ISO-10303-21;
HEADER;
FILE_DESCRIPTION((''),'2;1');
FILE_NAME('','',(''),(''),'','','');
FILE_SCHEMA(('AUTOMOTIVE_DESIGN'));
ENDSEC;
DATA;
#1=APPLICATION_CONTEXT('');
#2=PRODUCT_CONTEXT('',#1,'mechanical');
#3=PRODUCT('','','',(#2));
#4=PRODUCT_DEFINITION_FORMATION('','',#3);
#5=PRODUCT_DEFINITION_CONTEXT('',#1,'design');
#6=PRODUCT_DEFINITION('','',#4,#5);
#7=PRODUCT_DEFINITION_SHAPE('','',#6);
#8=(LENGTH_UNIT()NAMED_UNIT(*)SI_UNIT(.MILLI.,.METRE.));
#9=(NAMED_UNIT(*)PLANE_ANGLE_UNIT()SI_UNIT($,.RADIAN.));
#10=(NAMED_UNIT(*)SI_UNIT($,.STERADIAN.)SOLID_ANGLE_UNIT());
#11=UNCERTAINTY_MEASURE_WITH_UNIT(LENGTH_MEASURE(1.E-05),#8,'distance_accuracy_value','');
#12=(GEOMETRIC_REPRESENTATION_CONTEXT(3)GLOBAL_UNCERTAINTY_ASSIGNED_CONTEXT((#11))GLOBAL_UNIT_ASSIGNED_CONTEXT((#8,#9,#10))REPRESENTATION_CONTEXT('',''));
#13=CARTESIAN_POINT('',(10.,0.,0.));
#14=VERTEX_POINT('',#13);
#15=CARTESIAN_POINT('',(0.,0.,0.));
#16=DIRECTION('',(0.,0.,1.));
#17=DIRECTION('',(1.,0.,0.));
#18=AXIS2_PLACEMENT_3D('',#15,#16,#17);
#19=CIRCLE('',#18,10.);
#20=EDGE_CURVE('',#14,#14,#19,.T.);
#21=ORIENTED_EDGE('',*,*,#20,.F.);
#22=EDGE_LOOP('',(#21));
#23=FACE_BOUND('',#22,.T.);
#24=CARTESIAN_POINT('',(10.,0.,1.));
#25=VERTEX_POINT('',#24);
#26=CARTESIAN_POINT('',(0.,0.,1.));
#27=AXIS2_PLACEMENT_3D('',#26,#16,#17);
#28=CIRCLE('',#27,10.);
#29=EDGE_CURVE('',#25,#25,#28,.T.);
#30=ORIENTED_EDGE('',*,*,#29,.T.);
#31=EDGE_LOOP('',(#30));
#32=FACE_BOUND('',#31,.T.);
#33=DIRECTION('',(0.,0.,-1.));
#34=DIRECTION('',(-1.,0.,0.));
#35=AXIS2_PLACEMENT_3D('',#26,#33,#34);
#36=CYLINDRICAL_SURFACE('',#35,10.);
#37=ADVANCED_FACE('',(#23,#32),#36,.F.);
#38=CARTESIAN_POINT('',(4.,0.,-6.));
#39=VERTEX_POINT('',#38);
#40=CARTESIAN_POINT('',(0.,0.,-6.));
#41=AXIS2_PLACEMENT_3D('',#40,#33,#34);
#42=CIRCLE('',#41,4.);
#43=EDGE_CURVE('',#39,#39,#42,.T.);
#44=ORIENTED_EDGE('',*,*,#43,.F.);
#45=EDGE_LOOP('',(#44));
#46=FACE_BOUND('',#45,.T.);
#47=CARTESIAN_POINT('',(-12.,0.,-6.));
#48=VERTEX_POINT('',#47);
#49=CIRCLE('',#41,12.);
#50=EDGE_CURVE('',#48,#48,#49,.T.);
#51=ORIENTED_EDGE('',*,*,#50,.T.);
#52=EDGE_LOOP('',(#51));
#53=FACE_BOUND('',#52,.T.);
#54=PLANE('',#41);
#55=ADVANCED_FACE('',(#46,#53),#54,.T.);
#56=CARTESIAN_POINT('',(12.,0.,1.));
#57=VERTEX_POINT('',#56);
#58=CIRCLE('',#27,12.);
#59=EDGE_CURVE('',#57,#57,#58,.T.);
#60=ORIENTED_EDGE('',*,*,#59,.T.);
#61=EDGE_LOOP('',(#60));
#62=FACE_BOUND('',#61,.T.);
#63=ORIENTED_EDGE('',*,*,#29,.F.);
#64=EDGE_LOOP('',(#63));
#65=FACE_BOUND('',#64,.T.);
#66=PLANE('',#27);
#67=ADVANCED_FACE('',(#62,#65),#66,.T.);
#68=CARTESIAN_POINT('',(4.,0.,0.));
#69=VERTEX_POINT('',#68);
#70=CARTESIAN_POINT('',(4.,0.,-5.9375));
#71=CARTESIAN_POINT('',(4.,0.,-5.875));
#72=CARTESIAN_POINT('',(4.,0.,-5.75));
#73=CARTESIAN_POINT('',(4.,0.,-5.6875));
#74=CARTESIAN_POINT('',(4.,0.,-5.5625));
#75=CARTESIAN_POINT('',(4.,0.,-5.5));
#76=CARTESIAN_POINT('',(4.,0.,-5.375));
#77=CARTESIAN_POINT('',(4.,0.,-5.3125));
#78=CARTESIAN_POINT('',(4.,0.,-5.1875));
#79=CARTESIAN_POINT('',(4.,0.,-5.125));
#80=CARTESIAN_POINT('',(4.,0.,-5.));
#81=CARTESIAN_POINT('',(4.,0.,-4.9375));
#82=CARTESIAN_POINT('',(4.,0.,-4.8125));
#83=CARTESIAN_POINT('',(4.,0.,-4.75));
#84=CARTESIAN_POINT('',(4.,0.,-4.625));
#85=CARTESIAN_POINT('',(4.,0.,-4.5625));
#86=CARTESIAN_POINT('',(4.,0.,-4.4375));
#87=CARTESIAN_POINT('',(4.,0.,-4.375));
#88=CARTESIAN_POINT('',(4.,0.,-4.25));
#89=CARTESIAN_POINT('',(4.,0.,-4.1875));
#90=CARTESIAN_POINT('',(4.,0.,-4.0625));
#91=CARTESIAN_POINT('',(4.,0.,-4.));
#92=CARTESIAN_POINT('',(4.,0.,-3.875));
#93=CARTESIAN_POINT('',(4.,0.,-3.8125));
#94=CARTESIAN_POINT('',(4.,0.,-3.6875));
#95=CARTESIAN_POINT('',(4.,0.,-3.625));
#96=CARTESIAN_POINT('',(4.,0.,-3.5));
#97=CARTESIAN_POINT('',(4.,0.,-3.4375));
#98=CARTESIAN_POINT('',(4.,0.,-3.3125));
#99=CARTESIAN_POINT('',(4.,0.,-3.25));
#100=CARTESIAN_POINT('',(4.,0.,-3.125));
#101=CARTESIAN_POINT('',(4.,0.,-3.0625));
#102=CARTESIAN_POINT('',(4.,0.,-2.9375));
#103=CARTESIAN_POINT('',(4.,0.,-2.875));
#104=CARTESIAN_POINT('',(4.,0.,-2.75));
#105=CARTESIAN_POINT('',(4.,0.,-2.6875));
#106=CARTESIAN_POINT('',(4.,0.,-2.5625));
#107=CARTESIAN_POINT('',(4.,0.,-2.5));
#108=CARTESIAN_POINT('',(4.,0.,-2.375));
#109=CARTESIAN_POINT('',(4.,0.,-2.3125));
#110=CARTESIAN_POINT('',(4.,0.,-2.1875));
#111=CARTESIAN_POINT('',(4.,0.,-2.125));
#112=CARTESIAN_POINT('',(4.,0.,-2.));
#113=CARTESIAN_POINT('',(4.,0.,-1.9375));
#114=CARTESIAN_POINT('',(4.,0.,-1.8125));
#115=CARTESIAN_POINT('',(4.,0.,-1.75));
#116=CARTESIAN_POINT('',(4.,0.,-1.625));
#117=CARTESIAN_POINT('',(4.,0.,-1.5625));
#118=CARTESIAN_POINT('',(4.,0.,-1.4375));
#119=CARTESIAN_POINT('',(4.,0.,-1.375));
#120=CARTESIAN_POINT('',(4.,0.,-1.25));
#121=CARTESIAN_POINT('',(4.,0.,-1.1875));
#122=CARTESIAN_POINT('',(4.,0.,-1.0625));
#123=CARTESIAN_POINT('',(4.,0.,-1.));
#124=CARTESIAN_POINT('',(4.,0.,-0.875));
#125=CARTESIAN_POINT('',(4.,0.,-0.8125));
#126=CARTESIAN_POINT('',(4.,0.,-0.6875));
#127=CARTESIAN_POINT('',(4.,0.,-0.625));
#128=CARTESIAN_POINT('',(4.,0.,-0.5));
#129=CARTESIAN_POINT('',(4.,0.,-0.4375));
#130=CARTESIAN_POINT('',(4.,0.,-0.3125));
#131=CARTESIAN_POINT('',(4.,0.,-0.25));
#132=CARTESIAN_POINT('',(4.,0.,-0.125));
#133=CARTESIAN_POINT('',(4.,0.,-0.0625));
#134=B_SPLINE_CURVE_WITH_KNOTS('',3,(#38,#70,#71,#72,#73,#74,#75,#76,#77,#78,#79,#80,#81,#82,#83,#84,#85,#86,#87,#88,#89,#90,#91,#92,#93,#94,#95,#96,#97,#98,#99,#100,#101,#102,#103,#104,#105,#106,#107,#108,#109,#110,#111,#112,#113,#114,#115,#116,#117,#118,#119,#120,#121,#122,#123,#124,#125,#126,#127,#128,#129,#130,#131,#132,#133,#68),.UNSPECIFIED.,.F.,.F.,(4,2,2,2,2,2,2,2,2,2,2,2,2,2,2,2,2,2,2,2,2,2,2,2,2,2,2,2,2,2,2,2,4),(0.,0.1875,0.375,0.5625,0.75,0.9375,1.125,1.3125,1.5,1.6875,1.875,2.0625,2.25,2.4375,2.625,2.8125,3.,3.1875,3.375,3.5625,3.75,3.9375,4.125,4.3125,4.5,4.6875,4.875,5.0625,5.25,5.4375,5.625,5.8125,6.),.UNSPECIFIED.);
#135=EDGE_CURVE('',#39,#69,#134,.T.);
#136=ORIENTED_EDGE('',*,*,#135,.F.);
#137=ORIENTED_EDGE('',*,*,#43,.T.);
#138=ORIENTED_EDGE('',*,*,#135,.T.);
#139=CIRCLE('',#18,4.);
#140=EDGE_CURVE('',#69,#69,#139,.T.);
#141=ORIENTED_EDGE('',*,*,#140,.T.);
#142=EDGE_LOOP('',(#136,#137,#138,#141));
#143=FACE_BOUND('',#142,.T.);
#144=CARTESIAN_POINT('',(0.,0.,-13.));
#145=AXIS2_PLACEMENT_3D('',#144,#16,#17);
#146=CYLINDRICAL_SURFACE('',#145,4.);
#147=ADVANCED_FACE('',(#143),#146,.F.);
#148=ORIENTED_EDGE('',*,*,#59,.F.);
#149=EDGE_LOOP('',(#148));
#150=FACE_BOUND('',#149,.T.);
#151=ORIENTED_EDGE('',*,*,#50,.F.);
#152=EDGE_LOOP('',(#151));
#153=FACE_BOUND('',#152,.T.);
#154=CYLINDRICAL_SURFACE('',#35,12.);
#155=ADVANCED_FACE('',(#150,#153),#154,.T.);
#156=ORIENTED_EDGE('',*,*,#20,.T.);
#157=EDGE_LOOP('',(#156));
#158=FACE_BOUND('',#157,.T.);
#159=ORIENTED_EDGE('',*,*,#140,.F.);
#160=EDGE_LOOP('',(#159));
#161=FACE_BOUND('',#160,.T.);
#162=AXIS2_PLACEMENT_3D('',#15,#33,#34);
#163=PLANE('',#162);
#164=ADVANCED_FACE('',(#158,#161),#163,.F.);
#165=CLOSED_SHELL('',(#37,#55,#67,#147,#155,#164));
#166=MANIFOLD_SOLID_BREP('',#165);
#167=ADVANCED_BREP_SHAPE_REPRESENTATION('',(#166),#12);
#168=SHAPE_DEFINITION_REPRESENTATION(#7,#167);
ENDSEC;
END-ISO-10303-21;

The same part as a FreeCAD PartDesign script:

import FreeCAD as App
import Part
import Sketcher
from FreeCAD import Vector

doc = App.newDocument("Part")
body = doc.addObject("PartDesign::Body", "Body")

# Sketch on XY plane
sketch1 = body.newObject("Sketcher::SketchObject", "Sketch")
sketch1.AttachmentSupport = (doc.getObject("XY_Plane"), [""])
sketch1.MapMode = "FlatFace"
sketch1.addGeometry([
    Part.Circle(Vector(0, 0, 0), Vector(0, 0, 1), 12),
    Part.Circle(Vector(0, 0, 0), Vector(0, 0, 1), 10),
], False)
sketch1.addConstraint([
    Sketcher.Constraint("Coincident", 0, 3, -1, 1),
    Sketcher.Constraint("Coincident", 1, 3, -1, 1),
    Sketcher.Constraint("Diameter", 0, 24.0),
    Sketcher.Constraint("Diameter", 1, 20.0),
])
pad1 = body.newObject("PartDesign::Pad", "Pad")
pad1.Profile = sketch1
pad1.Length = 1

# Sketch on XY plane
sketch2 = body.newObject("Sketcher::SketchObject", "Sketch001")
sketch2.AttachmentSupport = (doc.getObject("XY_Plane"), [""])
sketch2.MapMode = "FlatFace"
sketch2.AttachmentOffset = App.Placement(Vector(0, 0, -6), App.Rotation())
sketch2.addGeometry(Part.Circle(Vector(0, 0, 0), Vector(0, 0, 1), 12), False)
sketch2.addConstraint([
    Sketcher.Constraint("Coincident", 0, 3, -1, 1),
    Sketcher.Constraint("Diameter", 0, 24.0),
])
pad2 = body.newObject("PartDesign::Pad", "Pad001")
pad2.Profile = sketch2
pad2.Length = 6

# Sketch on XY plane
sketch3 = body.newObject("Sketcher::SketchObject", "Sketch002")
sketch3.AttachmentSupport = (doc.getObject("XY_Plane"), [""])
sketch3.MapMode = "FlatFace"
sketch3.addGeometry(Part.Circle(Vector(0, 0, 0), Vector(0, 0, 1), 4), False)
sketch3.addConstraint([
    Sketcher.Constraint("Coincident", 0, 3, -1, 1),
    Sketcher.Constraint("Diameter", 0, 8.0),
])
pocket1 = body.newObject("PartDesign::Pocket", "Pocket")
pocket1.Profile = sketch3
pocket1.Length = 13

doc.recompute()
